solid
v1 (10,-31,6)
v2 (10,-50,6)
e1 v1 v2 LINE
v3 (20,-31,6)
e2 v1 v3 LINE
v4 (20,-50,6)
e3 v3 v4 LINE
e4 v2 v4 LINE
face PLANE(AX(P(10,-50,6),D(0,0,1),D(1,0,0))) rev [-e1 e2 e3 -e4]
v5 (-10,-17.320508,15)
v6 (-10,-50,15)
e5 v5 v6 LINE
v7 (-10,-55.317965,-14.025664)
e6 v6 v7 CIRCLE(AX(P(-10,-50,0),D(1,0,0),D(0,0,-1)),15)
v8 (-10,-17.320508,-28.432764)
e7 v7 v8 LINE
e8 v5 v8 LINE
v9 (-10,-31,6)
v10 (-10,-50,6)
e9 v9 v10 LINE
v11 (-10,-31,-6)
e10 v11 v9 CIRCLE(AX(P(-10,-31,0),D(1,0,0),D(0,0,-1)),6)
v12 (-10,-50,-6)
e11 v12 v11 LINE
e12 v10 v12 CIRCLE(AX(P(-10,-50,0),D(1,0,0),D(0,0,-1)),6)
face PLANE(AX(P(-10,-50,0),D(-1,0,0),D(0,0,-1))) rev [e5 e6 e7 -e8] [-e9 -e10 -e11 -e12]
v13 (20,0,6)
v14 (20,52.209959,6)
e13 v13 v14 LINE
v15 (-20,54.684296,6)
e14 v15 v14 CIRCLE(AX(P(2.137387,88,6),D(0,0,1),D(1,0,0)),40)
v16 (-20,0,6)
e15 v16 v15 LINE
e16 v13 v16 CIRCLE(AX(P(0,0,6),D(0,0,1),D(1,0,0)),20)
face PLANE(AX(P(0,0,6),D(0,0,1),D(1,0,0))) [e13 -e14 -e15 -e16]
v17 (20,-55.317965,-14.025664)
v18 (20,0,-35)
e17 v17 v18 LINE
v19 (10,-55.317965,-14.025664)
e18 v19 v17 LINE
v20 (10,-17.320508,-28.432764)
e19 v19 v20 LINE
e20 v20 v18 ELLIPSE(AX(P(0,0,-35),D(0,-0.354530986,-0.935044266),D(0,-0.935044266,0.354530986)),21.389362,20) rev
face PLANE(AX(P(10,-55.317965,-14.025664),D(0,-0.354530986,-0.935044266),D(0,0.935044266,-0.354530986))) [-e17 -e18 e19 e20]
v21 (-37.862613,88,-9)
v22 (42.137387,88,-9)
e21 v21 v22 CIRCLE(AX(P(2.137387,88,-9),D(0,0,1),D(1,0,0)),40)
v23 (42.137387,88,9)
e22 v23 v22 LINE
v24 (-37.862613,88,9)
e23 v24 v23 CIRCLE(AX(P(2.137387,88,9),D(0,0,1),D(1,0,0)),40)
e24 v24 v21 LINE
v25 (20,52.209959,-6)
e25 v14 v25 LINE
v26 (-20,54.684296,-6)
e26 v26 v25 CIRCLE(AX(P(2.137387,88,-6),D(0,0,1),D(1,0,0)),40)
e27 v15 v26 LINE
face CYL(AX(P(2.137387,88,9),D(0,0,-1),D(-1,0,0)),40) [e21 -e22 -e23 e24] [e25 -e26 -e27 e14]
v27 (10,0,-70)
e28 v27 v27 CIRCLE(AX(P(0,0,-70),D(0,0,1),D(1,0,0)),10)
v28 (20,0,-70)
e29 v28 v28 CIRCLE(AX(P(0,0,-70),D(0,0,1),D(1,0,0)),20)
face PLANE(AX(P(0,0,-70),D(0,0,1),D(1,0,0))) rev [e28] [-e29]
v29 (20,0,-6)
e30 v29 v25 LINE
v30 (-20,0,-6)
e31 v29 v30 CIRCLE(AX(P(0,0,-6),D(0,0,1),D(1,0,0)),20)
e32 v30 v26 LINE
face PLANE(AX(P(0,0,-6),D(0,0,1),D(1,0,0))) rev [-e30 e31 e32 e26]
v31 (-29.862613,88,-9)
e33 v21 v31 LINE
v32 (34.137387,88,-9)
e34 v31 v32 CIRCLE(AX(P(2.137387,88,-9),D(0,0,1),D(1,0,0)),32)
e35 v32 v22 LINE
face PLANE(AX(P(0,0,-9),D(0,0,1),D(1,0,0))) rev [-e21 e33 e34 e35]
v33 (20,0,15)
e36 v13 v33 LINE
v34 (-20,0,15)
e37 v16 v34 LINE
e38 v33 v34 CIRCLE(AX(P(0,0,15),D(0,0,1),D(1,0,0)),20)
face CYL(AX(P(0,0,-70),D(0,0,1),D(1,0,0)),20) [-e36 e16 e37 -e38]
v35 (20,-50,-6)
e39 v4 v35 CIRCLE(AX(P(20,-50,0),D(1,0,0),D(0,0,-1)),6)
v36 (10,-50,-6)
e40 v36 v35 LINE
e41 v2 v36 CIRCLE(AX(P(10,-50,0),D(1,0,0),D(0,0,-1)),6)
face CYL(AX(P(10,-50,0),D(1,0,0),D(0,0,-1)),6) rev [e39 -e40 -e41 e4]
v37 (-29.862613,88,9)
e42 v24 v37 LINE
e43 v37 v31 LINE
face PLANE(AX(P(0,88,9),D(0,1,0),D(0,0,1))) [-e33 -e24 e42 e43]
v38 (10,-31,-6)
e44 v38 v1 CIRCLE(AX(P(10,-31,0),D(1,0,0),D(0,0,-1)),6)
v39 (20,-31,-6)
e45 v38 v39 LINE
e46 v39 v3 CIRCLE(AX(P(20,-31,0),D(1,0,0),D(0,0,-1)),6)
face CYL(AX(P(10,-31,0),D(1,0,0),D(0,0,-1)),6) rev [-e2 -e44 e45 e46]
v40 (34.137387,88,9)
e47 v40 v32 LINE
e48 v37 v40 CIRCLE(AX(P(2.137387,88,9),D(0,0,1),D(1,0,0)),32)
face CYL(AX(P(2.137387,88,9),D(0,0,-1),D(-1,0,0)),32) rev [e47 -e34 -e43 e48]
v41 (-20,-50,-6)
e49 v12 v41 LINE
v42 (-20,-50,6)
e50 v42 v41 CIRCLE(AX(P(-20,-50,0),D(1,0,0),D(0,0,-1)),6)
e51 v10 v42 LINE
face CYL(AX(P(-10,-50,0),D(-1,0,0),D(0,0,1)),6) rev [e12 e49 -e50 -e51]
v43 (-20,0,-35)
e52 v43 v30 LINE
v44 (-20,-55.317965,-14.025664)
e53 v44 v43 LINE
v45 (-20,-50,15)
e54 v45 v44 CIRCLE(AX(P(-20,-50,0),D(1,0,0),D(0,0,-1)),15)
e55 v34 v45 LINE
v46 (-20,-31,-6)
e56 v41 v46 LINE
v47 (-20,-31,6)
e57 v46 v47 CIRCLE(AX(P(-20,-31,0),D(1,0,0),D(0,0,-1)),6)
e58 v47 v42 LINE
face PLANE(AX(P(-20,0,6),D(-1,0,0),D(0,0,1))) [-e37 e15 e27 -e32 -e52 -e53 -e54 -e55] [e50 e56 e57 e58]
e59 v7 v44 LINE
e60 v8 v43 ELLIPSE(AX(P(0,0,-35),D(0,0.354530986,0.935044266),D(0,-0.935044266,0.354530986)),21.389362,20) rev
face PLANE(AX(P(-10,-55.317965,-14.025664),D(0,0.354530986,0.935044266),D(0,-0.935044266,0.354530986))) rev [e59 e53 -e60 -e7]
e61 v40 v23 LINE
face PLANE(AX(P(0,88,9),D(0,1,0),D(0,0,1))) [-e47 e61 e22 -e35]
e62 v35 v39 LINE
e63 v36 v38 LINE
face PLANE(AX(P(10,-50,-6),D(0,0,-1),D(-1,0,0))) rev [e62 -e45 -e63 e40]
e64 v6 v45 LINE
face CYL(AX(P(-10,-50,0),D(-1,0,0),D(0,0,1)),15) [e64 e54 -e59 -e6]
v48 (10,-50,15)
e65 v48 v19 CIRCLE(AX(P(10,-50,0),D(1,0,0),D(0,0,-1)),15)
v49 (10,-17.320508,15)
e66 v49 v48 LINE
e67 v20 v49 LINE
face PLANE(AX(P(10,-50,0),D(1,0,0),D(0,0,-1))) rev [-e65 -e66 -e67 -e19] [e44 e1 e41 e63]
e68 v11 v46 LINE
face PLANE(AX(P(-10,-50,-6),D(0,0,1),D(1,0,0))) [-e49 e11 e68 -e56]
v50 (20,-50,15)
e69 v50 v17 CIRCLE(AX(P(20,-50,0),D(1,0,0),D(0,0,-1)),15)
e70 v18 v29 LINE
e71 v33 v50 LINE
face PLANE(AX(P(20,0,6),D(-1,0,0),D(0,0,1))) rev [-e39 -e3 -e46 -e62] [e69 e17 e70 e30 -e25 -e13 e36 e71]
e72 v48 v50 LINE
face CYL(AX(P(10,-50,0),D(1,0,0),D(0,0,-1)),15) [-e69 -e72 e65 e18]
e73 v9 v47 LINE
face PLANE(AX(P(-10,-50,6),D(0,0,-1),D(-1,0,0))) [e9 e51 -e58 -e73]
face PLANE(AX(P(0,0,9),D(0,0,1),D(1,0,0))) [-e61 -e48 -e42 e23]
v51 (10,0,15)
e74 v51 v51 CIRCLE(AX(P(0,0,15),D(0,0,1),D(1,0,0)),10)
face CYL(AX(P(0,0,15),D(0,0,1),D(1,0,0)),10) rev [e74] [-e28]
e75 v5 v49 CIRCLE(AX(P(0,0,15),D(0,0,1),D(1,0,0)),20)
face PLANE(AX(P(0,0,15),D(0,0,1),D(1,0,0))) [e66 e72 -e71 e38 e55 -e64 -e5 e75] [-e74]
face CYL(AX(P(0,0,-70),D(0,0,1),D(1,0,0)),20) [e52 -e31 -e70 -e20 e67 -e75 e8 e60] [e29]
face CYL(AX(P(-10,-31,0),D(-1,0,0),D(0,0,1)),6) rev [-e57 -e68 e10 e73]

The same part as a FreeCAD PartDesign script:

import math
import FreeCAD as App
import Part
import Sketcher


def add_polygon(sketch, points):
    """Adds a closed chain of lines whose ends are joined by coincident constraints."""
    first, n = sketch.GeometryCount, len(points)
    for a, b in zip(points, points[1:] + points[:1]):
        sketch.addGeometry(Part.LineSegment(App.Vector(*a, 0), App.Vector(*b, 0)), False)
    for i in range(n):
        sketch.addConstraint(Sketcher.Constraint("Coincident", first + i, 2, first + (i + 1) % n, 1))

doc = App.newDocument("Part")
params = doc.addObject("Spreadsheet::Sheet", "Params")
for row, (alias, value) in enumerate([
    ("sketch1_radius", "32 mm"),
    ("sketch1_radius2", "40 mm"),
    ("pad1_length", "18 mm"),
    ("sketch2_radius", "40 mm"),
    ("sketch2_radius2", "20 mm"),
    ("pad2_length", "12 mm"),
    ("sketch3_diameter", "40 mm"),
    ("pad3_length", "15 mm"),
    ("pad3_length2", "70 mm"),
    ("sketch4_radius", "15 mm"),
    ("sketch4_radius2", "6 mm"),
    ("sketch4_width", "50 mm"),
    ("sketch4_width2", "19 mm"),
    ("pad4_length", "10 mm"),
    ("sketch5_width", "10 mm"),
    ("groove_angle", "360 deg"),
], start=1):
    params.set(f"A{row}", alias)
    params.set(f"B{row}", "=" + value)
    params.setAlias(f"B{row}", alias)

body = doc.addObject("PartDesign::Body", "Body")

sketch1 = doc.addObject("Sketcher::SketchObject", "Sketch")
body.addObject(sketch1)
sketch1.AttachmentSupport = (doc.XY_Plane, [""])
sketch1.MapMode = "FlatFace"
sketch1.addGeometry([
    Part.ArcOfCircle(Part.Circle(App.Vector(2.137387, 88, 0), App.Vector(0, 0, 1), 32), math.radians(180), math.radians(360)),
    Part.LineSegment(App.Vector(-29.862613, 88, 0), App.Vector(-37.862613, 88, 0)),
    Part.ArcOfCircle(Part.Circle(App.Vector(2.137387, 88, 0), App.Vector(0, 0, 1), 40), math.radians(180), math.radians(360)),
    Part.LineSegment(App.Vector(42.137387, 88, 0), App.Vector(34.137387, 88, 0)),
], False)
sketch1.addConstraint([
    Sketcher.Constraint("Coincident", 0, 1, 1, 1),
    Sketcher.Constraint("Coincident", 1, 2, 2, 1),
    Sketcher.Constraint("Coincident", 2, 2, 3, 1),
    Sketcher.Constraint("Coincident", 3, 2, 0, 2),
    Sketcher.Constraint("Horizontal", 1),
    Sketcher.Constraint("Horizontal", 3),
    Sketcher.Constraint("Coincident", 2, 3, 0, 3),
    Sketcher.Constraint("Horizontal", 2, 3, 0, 1),
    Sketcher.Constraint("Horizontal", 1, 2, 2, 2),
    Sketcher.Constraint("Radius", 0, 32.0),
    Sketcher.Constraint("Radius", 2, 40.0),
    Sketcher.Constraint("DistanceY", -1, 1, 0, 3, 88.0),
    Sketcher.Constraint("DistanceX", -1, 1, 0, 3, 2.137387),
])
sketch1.setExpression("Constraints[9]", "Params.sketch1_radius")
sketch1.setExpression("Constraints[10]", "Params.sketch1_radius2")
pad1 = doc.addObject("PartDesign::Pad", "Pad")
body.addObject(pad1)
pad1.Profile = sketch1
pad1.setExpression("Length", "Params.pad1_length")
pad1.Midplane = True

sketch2 = doc.addObject("Sketcher::SketchObject", "Sketch001")
body.addObject(sketch2)
sketch2.AttachmentSupport = (doc.XY_Plane, [""])
sketch2.MapMode = "FlatFace"
sketch2.addGeometry([
    Part.ArcOfCircle(Part.Circle(App.Vector(2.137387, 88, 0), App.Vector(0, 0, 1), 40), math.radians(-123.602966), math.radians(-63.476468)),
    Part.LineSegment(App.Vector(-20, 54.684296, 0), App.Vector(-20, 0, 0)),
    Part.ArcOfCircle(Part.Circle(App.Vector(0, 0, 0), App.Vector(0, 0, 1), 20), math.radians(0), math.radians(180)),
    Part.LineSegment(App.Vector(20, 0, 0), App.Vector(20, 52.209959, 0)),
], False)
sketch2.addConstraint([
    Sketcher.Constraint("Coincident", 0, 1, 1, 1),
    Sketcher.Constraint("Tangent", 1, 2, 2, 2),
    Sketcher.Constraint("Tangent", 2, 1, 3, 1),
    Sketcher.Constraint("Coincident", 3, 2, 0, 2),
    Sketcher.Constraint("Vertical", 1),
    Sketcher.Constraint("Vertical", 3),
    Sketcher.Constraint("Coincident", 2, 3, -1, 1),
    Sketcher.Constraint("Radius", 0, 40.0),
    Sketcher.Constraint("Radius", 2, 20.0),
    Sketcher.Constraint("DistanceY", -1, 1, 0, 3, 88.0),
    Sketcher.Constraint("DistanceY", 3, 1, 3, 2, 52.209959),
])
sketch2.setExpression("Constraints[7]", "Params.sketch2_radius")
sketch2.setExpression("Constraints[8]", "Params.sketch2_radius2")
pad2 = doc.addObject("PartDesign::Pad", "Pad001")
body.addObject(pad2)
pad2.Profile = sketch2
pad2.setExpression("Length", "Params.pad2_length")
pad2.Midplane = True

sketch3 = doc.addObject("Sketcher::SketchObject", "Sketch002")
body.addObject(sketch3)
sketch3.AttachmentSupport = (doc.XY_Plane, [""])
sketch3.MapMode = "FlatFace"
sketch3.addGeometry(Part.Circle(App.Vector(0, 0, 0), App.Vector(0, 0, 1), 20), False)
sketch3.addConstraint([
    Sketcher.Constraint("Coincident", 0, 3, -1, 1),
    Sketcher.Constraint("Diameter", 0, 40.0),
])
sketch3.setExpression("Constraints[1]", "Params.sketch3_diameter")
pad3 = doc.addObject("PartDesign::Pad", "Pad002")
body.addObject(pad3)
pad3.Profile = sketch3
pad3.Type = "TwoLengths"
pad3.setExpression("Length", "Params.pad3_length")
pad3.setExpression("Length2", "Params.pad3_length2")

sketch4 = doc.addObject("Sketcher::SketchObject", "Sketch003")
body.addObject(sketch4)
sketch4.AttachmentSupport = (doc.YZ_Plane, [""])
sketch4.MapMode = "FlatFace"
sketch4.AttachmentOffset = App.Placement(App.Vector(0, 0, 20), App.Rotation())
sketch4.addGeometry([
    Part.LineSegment(App.Vector(0, 15, 0), App.Vector(-50, 15, 0)),
    Part.ArcOfCircle(Part.Circle(App.Vector(-50, 0, 0), App.Vector(0, 0, 1), 15), math.radians(90), math.radians(249.235298)),
    Part.LineSegment(App.Vector(-55.317965, -14.025664, 0), App.Vector(0, -35, 0)),
    Part.LineSegment(App.Vector(0, -35, 0), App.Vector(0, 15, 0)),
    Part.ArcOfCircle(Part.Circle(App.Vector(-50, 0, 0), App.Vector(0, 0, 1), 6), math.radians(90), math.radians(270)),
    Part.LineSegment(App.Vector(-50, 6, 0), App.Vector(-31, 6, 0)),
    Part.ArcOfCircle(Part.Circle(App.Vector(-31, 0, 0), App.Vector(0, 0, 1), 6), math.radians(-90), math.radians(90)),
    Part.LineSegment(App.Vector(-31, -6, 0), App.Vector(-50, -6, 0)),
], False)
sketch4.addConstraint([
    Sketcher.Constraint("Tangent", 0, 2, 1, 1),
    Sketcher.Constraint("Tangent", 1, 2, 2, 1),
    Sketcher.Constraint("Coincident", 2, 2, 3, 1),
    Sketcher.Constraint("Coincident", 3, 2, 0, 1),
    Sketcher.Constraint("Tangent", 4, 1, 5, 1),
    Sketcher.Constraint("Tangent", 5, 2, 6, 2),
    Sketcher.Constraint("Tangent", 6, 1, 7, 1),
    Sketcher.Constraint("Tangent", 7, 2, 4, 2),
    Sketcher.Constraint("Horizontal", 0),
    Sketcher.Constraint("Vertical", 3),
    Sketcher.Constraint("Horizontal", 5),
    Sketcher.Constraint("Horizontal", 7),
    Sketcher.Constraint("Coincident", 4, 3, 1, 3),
    Sketcher.Constraint("PointOnObject", 1, 3, -1),
    Sketcher.Constraint("PointOnObject", 2, 2, -2),
    Sketcher.Constraint("Equal", 0, 3),
    Sketcher.Constraint("Radius", 1, 15.0),
    Sketcher.Constraint("Radius", 4, 6.0),
    Sketcher.Constraint("DistanceX", 0, 2, 0, 1, 50.0),
    Sketcher.Constraint("DistanceX", 5, 1, 5, 2, 19.0),
])
sketch4.setExpression("Constraints[16]", "Params.sketch4_radius")
sketch4.setExpression("Constraints[17]", "Params.sketch4_radius2")
sketch4.setExpression("Constraints[18]", "Params.sketch4_width")
sketch4.setExpression("Constraints[19]", "Params.sketch4_width2")
pad4 = doc.addObject("PartDesign::Pad", "Pad003")
body.addObject(pad4)
pad4.Profile = sketch4
pad4.setExpression("Length", "Params.pad4_length")
pad4.Reversed = True
doc.recompute()

mirrored = doc.addObject("PartDesign::Mirrored", "Mirrored")
body.addObject(mirrored)
mirrored.Originals = [pad4]
mirrored.MirrorPlane = (doc.YZ_Plane, [""])
body.Tip = mirrored

sketch5 = doc.addObject("Sketcher::SketchObject", "Sketch004")
body.addObject(sketch5)
sketch5.AttachmentSupport = (doc.YZ_Plane, [""])
sketch5.MapMode = "FlatFace"
add_polygon(sketch5, [(0, -70.001), (0, 15), (-10, 15), (-10, -70.001)])
sketch5.addConstraint([
    Sketcher.Constraint("Vertical", 0),
    Sketcher.Constraint("Horizontal", 1),
    Sketcher.Constraint("Vertical", 2),
    Sketcher.Constraint("Horizontal", 3),
    Sketcher.Constraint("PointOnObject", 0, 2, -2),
    Sketcher.Constraint("DistanceX", 1, 2, 1, 1, 10.0),
    Sketcher.Constraint("DistanceY", -1, 1, 0, 2, 15.0),
    Sketcher.Constraint("DistanceY", 0, 1, 0, 2, 85.001),
])
sketch5.setExpression("Constraints[9]", "Params.sketch5_width")
groove = doc.addObject("PartDesign::Groove", "Groove")
body.addObject(groove)
groove.Profile = sketch5
groove.ReferenceAxis = (sketch5, ["V_Axis"])
groove.setExpression("Angle", "Params.groove_angle")

doc.recompute()
